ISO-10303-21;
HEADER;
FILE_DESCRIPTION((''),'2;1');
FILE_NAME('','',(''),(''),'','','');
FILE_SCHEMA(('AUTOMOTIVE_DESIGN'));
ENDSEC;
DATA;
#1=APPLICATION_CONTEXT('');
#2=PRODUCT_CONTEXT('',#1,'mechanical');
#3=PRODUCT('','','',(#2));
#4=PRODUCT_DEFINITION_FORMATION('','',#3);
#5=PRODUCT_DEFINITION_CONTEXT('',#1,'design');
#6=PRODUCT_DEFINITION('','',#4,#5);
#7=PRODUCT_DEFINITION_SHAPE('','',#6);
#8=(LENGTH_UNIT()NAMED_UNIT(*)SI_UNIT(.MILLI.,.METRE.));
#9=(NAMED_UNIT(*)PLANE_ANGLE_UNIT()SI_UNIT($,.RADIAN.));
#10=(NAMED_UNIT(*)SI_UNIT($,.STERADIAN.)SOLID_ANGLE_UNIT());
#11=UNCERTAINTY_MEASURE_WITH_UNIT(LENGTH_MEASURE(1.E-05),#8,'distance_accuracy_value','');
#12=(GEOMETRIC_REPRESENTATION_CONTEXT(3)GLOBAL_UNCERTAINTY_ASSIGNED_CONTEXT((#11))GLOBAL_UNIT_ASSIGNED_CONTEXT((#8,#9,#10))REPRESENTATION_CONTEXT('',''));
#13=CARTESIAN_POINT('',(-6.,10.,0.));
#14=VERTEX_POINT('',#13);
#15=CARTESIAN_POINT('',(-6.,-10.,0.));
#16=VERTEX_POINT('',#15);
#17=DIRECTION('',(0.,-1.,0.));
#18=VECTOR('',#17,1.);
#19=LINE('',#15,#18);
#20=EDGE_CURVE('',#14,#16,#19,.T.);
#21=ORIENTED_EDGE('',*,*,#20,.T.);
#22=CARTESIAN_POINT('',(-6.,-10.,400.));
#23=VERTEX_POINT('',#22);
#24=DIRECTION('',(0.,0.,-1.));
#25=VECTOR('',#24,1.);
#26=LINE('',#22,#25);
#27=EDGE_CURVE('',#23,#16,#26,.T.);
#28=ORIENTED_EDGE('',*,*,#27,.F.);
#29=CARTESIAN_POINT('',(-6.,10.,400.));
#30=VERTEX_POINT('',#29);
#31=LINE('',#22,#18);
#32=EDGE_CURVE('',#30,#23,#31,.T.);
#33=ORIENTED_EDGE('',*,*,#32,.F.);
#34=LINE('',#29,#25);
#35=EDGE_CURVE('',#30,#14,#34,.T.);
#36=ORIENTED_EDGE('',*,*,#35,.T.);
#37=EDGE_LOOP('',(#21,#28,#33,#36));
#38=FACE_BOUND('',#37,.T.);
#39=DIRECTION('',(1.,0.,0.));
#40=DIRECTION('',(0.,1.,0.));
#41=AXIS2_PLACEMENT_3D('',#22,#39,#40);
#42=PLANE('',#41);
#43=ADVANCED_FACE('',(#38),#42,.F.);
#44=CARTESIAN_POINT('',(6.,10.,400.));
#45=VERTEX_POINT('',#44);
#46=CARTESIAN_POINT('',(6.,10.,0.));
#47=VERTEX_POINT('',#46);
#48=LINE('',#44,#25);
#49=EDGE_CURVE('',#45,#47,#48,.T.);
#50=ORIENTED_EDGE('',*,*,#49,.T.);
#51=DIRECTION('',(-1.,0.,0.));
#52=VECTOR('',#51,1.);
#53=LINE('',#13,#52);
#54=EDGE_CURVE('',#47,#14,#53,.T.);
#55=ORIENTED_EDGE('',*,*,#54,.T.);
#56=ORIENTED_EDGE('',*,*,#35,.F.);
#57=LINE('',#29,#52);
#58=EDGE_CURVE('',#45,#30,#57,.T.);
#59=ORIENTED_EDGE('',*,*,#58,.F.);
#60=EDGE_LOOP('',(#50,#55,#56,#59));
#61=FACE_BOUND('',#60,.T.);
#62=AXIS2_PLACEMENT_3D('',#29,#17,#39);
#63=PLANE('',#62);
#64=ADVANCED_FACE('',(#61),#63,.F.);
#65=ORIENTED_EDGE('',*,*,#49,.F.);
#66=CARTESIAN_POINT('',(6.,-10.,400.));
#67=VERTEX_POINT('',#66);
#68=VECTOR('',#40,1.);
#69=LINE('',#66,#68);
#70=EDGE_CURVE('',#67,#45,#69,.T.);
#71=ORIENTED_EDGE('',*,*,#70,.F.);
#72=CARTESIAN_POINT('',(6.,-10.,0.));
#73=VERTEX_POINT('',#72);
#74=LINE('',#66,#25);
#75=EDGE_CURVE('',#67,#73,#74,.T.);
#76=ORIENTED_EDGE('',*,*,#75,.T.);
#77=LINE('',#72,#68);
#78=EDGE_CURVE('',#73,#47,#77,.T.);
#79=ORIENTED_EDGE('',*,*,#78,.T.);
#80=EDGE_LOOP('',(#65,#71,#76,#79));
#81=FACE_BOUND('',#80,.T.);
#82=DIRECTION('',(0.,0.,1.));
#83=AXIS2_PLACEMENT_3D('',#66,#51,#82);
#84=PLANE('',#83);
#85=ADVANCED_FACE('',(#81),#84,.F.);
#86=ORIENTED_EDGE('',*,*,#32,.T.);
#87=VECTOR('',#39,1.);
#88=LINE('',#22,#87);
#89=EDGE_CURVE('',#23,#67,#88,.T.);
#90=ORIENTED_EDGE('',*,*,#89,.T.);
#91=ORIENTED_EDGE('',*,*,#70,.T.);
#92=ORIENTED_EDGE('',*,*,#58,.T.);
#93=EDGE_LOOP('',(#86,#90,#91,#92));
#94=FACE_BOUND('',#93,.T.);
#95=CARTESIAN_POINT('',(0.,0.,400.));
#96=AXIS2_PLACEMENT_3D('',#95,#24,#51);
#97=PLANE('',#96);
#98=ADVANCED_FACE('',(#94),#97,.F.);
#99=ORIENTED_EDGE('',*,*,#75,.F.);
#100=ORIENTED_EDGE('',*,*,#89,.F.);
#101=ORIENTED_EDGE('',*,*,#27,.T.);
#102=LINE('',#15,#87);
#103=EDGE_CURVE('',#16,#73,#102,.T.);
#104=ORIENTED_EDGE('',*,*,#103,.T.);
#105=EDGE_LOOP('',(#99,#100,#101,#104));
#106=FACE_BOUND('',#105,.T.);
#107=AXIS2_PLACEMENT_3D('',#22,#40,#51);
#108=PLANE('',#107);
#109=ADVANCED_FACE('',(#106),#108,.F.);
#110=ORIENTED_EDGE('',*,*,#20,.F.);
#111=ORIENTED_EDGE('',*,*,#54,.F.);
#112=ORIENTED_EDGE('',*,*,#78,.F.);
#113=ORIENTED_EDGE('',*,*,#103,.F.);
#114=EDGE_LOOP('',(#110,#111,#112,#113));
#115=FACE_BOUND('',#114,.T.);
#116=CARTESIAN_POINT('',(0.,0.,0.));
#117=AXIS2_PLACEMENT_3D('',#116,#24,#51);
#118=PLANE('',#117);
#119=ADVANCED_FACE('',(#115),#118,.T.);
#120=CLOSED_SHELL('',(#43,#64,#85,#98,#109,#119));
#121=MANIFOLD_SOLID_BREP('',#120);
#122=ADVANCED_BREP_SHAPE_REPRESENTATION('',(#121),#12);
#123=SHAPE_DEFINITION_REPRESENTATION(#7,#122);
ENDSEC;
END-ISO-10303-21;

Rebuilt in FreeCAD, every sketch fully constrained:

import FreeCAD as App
import Part
import Sketcher
Q = App.Units.Quantity


def add_polygon(sketch, points):
    """Adds a closed chain of lines whose ends are joined by coincident constraints."""
    first, n = sketch.GeometryCount, len(points)
    for a, b in zip(points, points[1:] + points[:1]):
        sketch.addGeometry(Part.LineSegment(App.Vector(*a, 0), App.Vector(*b, 0)), False)
    for i in range(n):
        sketch.addConstraint(Sketcher.Constraint("Coincident", first + i, 2, first + (i + 1) % n, 1))

doc = App.newDocument("Part")
body = doc.addObject("PartDesign::Body", "Body")

sketch1 = body.newObject("Sketcher::SketchObject", "Sketch")
sketch1.AttachmentSupport = (doc.getObject("XY_Plane"), [""])
sketch1.MapMode = "FlatFace"
add_polygon(sketch1, [(-6, 10), (-6, -10), (6, -10), (6, 10)])
sketch1.addConstraint([
    Sketcher.Constraint("Vertical", 0),
    Sketcher.Constraint("Horizontal", 1),
    Sketcher.Constraint("Vertical", 2),
    Sketcher.Constraint("Horizontal", 3),
    Sketcher.Constraint("Symmetric", 0, 2, 2, 2, -1, 1),
    Sketcher.Constraint("DistanceX", 1, 1, 1, 2, Q("12 mm")),
    Sketcher.Constraint("DistanceY", 0, 2, 0, 1, Q("20 mm")),
])
pad1 = body.newObject("PartDesign::Pad", "Pad")
pad1.Profile = sketch1
pad1.Length = 400

doc.recompute()
